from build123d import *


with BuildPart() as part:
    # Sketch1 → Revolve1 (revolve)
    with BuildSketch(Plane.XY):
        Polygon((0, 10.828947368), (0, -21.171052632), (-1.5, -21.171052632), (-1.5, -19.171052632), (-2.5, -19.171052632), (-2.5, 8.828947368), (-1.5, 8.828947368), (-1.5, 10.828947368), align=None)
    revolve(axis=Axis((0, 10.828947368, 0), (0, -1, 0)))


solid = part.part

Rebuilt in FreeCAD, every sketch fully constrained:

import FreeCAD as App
import Part
import Sketcher

V = App.Vector
Q = App.Units.Quantity


def add_polygon(sketch, points):
    """Adds a closed chain of lines whose ends are joined by coincident constraints."""
    first, n = sketch.GeometryCount, len(points)
    for a, b in zip(points, points[1:] + points[:1]):
        sketch.addGeometry(Part.LineSegment(App.Vector(*a, 0), App.Vector(*b, 0)), False)
    for i in range(n):
        sketch.addConstraint(Sketcher.Constraint("Coincident", first + i, 2, first + (i + 1) % n, 1))

doc = App.newDocument("Part")
body = doc.addObject("PartDesign::Body", "Body")

sketch1 = doc.addObject("Sketcher::SketchObject", "Sketch")
body.addObject(sketch1)
sketch1.AttachmentSupport = (doc.XY_Plane, [""])
sketch1.MapMode = "FlatFace"
add_polygon(sketch1, [(0, -21.2), (0, 10.8), (-1.5, 10.8), (-1.5, 8.8), (-2.5, 8.8), (-2.5, -19.2), (-1.5, -19.2), (-1.5, -21.2)])
sketch1.addConstraint(Sketcher.Constraint("Vertical", 0))
sketch1.addConstraint(Sketcher.Constraint("Horizontal", 1))
sketch1.addConstraint(Sketcher.Constraint("Vertical", 2))
sketch1.addConstraint(Sketcher.Constraint("Horizontal", 3))
sketch1.addConstraint(Sketcher.Constraint("Vertical", 4))
sketch1.addConstraint(Sketcher.Constraint("Horizontal", 5))
sketch1.addConstraint(Sketcher.Constraint("Vertical", 6))
sketch1.addConstraint(Sketcher.Constraint("Horizontal", 7))
sketch1.addConstraint(Sketcher.Constraint("PointOnObject", 0, 2, -2))
sketch1.addConstraint(Sketcher.Constraint("Vertical", 2, 2, 5, 2))
sketch1.addConstraint(Sketcher.Constraint("Equal", 2, 6))
sketch1.addConstraint(Sketcher.Constraint("DistanceX", 3, 2, 3, 1, Q("1 mm")))
sketch1.addConstraint(Sketcher.Constraint("DistanceY", 0, 1, 0, 2, Q("32 mm")))
sketch1.addConstraint(Sketcher.Constraint("DistanceY", 2, 2, 2, 1, Q("2 mm")))
sketch1.addConstraint(Sketcher.Constraint("DistanceX", 1, 2, 1, 1, Q("1.5 mm")))
sketch1.addConstraint(Sketcher.Constraint("DistanceY", -1, 1, 0, 2, Q("10.828947 mm")))
revolution = doc.addObject("PartDesign::Revolution", "Revolution")
body.addObject(revolution)
revolution.Profile = sketch1
revolution.ReferenceAxis = (sketch1, ["V_Axis"])
revolution.Angle = 360

doc.recompute()
